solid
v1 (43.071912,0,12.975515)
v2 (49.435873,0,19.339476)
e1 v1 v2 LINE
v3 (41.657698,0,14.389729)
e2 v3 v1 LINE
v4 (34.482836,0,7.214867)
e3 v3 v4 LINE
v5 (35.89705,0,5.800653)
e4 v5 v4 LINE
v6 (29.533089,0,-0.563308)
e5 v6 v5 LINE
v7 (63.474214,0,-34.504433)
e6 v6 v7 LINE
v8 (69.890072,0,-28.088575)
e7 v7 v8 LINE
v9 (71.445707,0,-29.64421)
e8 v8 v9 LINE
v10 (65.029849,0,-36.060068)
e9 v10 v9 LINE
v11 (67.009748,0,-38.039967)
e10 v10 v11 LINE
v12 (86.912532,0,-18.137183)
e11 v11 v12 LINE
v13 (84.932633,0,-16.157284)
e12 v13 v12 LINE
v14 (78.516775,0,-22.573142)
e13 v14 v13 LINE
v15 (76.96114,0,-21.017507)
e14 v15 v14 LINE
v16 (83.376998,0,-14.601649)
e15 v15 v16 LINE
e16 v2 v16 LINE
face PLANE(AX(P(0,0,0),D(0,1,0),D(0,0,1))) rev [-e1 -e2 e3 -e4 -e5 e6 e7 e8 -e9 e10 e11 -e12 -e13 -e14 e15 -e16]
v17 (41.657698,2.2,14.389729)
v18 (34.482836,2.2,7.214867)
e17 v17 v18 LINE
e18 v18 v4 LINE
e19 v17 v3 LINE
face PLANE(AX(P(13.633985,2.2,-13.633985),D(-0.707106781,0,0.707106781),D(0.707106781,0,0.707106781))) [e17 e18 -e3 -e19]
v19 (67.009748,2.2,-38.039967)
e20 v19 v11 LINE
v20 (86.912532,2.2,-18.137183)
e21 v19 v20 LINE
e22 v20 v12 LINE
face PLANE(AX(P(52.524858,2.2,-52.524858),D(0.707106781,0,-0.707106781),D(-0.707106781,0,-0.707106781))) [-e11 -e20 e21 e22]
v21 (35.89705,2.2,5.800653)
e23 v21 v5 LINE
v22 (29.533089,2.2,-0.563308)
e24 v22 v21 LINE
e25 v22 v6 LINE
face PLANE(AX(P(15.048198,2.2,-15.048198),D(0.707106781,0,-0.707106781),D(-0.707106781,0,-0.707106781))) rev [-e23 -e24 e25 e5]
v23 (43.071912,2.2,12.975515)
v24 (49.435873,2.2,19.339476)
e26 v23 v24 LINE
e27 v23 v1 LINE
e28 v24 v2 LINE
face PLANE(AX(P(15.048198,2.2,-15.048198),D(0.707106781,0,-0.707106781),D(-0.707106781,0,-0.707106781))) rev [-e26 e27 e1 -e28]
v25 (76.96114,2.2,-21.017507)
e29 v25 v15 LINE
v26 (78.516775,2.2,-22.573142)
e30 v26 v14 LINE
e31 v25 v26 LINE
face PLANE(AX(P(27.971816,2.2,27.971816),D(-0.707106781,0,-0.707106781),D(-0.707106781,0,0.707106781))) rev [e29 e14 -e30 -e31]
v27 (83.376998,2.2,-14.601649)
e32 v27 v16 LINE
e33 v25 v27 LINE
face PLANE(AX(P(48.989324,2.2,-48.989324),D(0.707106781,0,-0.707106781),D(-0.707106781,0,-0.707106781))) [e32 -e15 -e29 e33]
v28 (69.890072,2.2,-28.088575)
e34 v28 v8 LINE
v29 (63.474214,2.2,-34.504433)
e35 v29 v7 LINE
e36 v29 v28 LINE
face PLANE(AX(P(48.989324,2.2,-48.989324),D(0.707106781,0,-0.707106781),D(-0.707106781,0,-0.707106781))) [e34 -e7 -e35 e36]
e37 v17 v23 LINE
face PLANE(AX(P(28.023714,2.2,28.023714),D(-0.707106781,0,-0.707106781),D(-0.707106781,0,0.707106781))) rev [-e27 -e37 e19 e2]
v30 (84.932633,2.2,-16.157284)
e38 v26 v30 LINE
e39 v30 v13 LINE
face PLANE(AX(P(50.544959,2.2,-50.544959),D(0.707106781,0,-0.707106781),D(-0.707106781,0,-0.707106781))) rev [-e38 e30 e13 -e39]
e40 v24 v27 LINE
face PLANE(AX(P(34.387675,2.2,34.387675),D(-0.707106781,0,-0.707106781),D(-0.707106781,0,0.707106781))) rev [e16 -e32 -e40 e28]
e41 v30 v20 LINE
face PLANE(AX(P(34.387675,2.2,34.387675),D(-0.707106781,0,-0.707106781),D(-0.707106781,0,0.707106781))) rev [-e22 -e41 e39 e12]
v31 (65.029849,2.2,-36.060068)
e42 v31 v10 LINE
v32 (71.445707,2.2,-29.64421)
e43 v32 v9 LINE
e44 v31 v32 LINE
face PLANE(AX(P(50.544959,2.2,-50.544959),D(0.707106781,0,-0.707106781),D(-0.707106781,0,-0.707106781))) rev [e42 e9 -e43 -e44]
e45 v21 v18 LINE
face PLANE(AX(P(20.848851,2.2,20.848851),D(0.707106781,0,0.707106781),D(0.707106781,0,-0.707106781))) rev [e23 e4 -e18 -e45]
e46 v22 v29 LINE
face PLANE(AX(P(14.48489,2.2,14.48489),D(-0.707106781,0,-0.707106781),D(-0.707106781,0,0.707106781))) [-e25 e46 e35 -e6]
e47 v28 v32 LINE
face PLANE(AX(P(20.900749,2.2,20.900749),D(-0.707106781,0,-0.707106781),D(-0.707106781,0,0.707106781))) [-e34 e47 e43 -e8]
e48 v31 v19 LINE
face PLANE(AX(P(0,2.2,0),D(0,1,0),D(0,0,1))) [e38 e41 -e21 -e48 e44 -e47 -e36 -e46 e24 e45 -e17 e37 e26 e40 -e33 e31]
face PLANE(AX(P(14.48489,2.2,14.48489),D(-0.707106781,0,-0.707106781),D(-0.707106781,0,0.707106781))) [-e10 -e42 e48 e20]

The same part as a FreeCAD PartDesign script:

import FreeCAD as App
import Part
import Sketcher

V = App.Vector
Q = App.Units.Quantity

doc = App.newDocument("Part")
params = doc.addObject("Spreadsheet::Sheet", "Params")
for row, (alias, value) in enumerate([
    ("sketch1_length", "48 mm"),
    ("sketch1_length2", "9 mm"),
    ("sketch1_length3", "2 mm"),
    ("sketch1_length4", "2.8 mm"),
    ("sketch1_length5", "2.2 mm"),
    ("pad1_length", "2.2 mm"),
], start=1):
    params.set(f"A{row}", alias)
    params.set(f"B{row}", "=" + value)
    params.setAlias(f"B{row}", alias)

body = doc.addObject("PartDesign::Body", "Body")

sketch1 = body.newObject("Sketcher::SketchObject", "Sketch")
sketch1.AttachmentSupport = (doc.getObject("XZ_Plane"), [""])
sketch1.MapMode = "FlatFace"
sketch1.addGeometry(Part.LineSegment(V(67, -38, 0), V(65, -36.1, 0)), False)
sketch1.addGeometry(Part.LineSegment(V(65, -36.1, 0), V(71.4, -29.6, 0)), False)
sketch1.addGeometry(Part.LineSegment(V(71.4, -29.6, 0), V(69.9, -28.1, 0)), False)
sketch1.addGeometry(Part.LineSegment(V(69.9, -28.1, 0), V(63.5, -34.5, 0)), False)
sketch1.addGeometry(Part.LineSegment(V(63.5, -34.5, 0), V(29.5, -0.6, 0)), False)
sketch1.addGeometry(Part.LineSegment(V(29.5, -0.6, 0), V(35.9, 5.8, 0)), False)
sketch1.addGeometry(Part.LineSegment(V(35.9, 5.8, 0), V(34.5, 7.2, 0)), False)
sketch1.addGeometry(Part.LineSegment(V(34.5, 7.2, 0), V(41.7, 14.4, 0)), False)
sketch1.addGeometry(Part.LineSegment(V(41.7, 14.4, 0), V(43.1, 13, 0)), False)
sketch1.addGeometry(Part.LineSegment(V(43.1, 13, 0), V(49.4, 19.3, 0)), False)
sketch1.addGeometry(Part.LineSegment(V(49.4, 19.3, 0), V(54.4, 14.4, 0)), False)
sketch1.addGeometry(Part.LineSegment(V(54.4, 14.4, 0), V(83.4, -14.6, 0)), False)
sketch1.addGeometry(Part.LineSegment(V(83.4, -14.6, 0), V(77, -21, 0)), False)
sketch1.addGeometry(Part.LineSegment(V(77, -21, 0), V(78.5, -22.6, 0)), False)
sketch1.addGeometry(Part.LineSegment(V(78.5, -22.6, 0), V(84.9, -16.2, 0)), False)
sketch1.addGeometry(Part.LineSegment(V(84.9, -16.2, 0), V(86.9, -18.1, 0)), False)
sketch1.addGeometry(Part.LineSegment(V(86.9, -18.1, 0), V(67, -38, 0)), False)
sketch1.addConstraint(Sketcher.Constraint("Coincident", 0, 2, 1, 1))
sketch1.addConstraint(Sketcher.Constraint("Coincident", 1, 2, 2, 1))
sketch1.addConstraint(Sketcher.Constraint("Coincident", 2, 2, 3, 1))
sketch1.addConstraint(Sketcher.Constraint("Coincident", 3, 2, 4, 1))
sketch1.addConstraint(Sketcher.Constraint("Coincident", 4, 2, 5, 1))
sketch1.addConstraint(Sketcher.Constraint("Coincident", 5, 2, 6, 1))
sketch1.addConstraint(Sketcher.Constraint("Coincident", 6, 2, 7, 1))
sketch1.addConstraint(Sketcher.Constraint("Coincident", 7, 2, 8, 1))
sketch1.addConstraint(Sketcher.Constraint("Coincident", 8, 2, 9, 1))
sketch1.addConstraint(Sketcher.Constraint("Coincident", 9, 2, 10, 1))
sketch1.addConstraint(Sketcher.Constraint("Coincident", 10, 2, 11, 1))
sketch1.addConstraint(Sketcher.Constraint("Coincident", 11, 2, 12, 1))
sketch1.addConstraint(Sketcher.Constraint("Coincident", 12, 2, 13, 1))
sketch1.addConstraint(Sketcher.Constraint("Coincident", 13, 2, 14, 1))
sketch1.addConstraint(Sketcher.Constraint("Coincident", 14, 2, 15, 1))
sketch1.addConstraint(Sketcher.Constraint("Coincident", 15, 2, 16, 1))
sketch1.addConstraint(Sketcher.Constraint("Coincident", 16, 2, 0, 1))
sketch1.addConstraint(Sketcher.Constraint("Perpendicular", 0, 1))
sketch1.addConstraint(Sketcher.Constraint("Perpendicular", 1, 2))
sketch1.addConstraint(Sketcher.Constraint("Perpendicular", 2, 3))
sketch1.addConstraint(Sketcher.Constraint("Perpendicular", 3, 4))
sketch1.addConstraint(Sketcher.Constraint("Perpendicular", 4, 5))
sketch1.addConstraint(Sketcher.Constraint("Perpendicular", 5, 6))
sketch1.addConstraint(Sketcher.Constraint("Perpendicular", 6, 7))
sketch1.addConstraint(Sketcher.Constraint("Perpendicular", 7, 8))
sketch1.addConstraint(Sketcher.Constraint("Perpendicular", 8, 9))
sketch1.addConstraint(Sketcher.Constraint("Perpendicular", 9, 10))
sketch1.addConstraint(Sketcher.Constraint("Parallel", 10, 11))
sketch1.addConstraint(Sketcher.Constraint("Perpendicular", 11, 12))
sketch1.addConstraint(Sketcher.Constraint("Perpendicular", 12, 13))
sketch1.addConstraint(Sketcher.Constraint("Perpendicular", 13, 14))
sketch1.addConstraint(Sketcher.Constraint("Perpendicular", 14, 15))
sketch1.addConstraint(Sketcher.Constraint("Perpendicular", 15, 16))
sketch1.addConstraint(Sketcher.Constraint("Equal", 1, 3))
sketch1.addConstraint(Sketcher.Constraint("Equal", 6, 8))
sketch1.addConstraint(Sketcher.Constraint("Equal", 5, 9))
sketch1.addConstraint(Sketcher.Constraint("Equal", 3, 12))
sketch1.addConstraint(Sketcher.Constraint("Equal", 2, 13))
sketch1.addConstraint(Sketcher.Constraint("Equal", 12, 14))
sketch1.addConstraint(Sketcher.Constraint("Equal", 0, 15))
sketch1.addConstraint(Sketcher.Constraint("Angle", 0, Q("135 deg")))
sketch1.addConstraint(Sketcher.Constraint("Distance", 4, Q("48 mm")))
sketch1.addConstraint(Sketcher.Constraint("Distance", 5, Q("9 mm")))
sketch1.addConstraint(Sketcher.Constraint("Distance", 6, Q("2 mm")))
sketch1.addConstraint(Sketcher.Constraint("Distance", 0, Q("2.8 mm")))
sketch1.addConstraint(Sketcher.Constraint("Distance", 2, Q("2.2 mm")))
sketch1.addConstraint(Sketcher.Constraint("DistanceX", -1, 1, 11, 2, Q("83.376998 mm")))
sketch1.addConstraint(Sketcher.Constraint("DistanceX", -1, 1, 0, 2, Q("65.029849 mm")))
sketch1.addConstraint(Sketcher.Constraint("DistanceY", 0, 2, -1, 1, Q("36.060068 mm")))
sketch1.addConstraint(Sketcher.Constraint("DistanceY", 1, 2, -1, 1, Q("29.64421 mm")))
sketch1.addConstraint(Sketcher.Constraint("DistanceY", -1, 1, 10, 2, Q("14.366372 mm")))
sketch1.setExpression("Constraints[41]", "Params.sketch1_length")
sketch1.setExpression("Constraints[42]", "Params.sketch1_length2")
sketch1.setExpression("Constraints[43]", "Params.sketch1_length3")
sketch1.setExpression("Constraints[44]", "Params.sketch1_length4")
sketch1.setExpression("Constraints[45]", "Params.sketch1_length5")
pad1 = body.newObject("PartDesign::Pad", "Pad")
pad1.Profile = sketch1
pad1.setExpression("Length", "Params.pad1_length")
pad1.Reversed = True

doc.recompute()
